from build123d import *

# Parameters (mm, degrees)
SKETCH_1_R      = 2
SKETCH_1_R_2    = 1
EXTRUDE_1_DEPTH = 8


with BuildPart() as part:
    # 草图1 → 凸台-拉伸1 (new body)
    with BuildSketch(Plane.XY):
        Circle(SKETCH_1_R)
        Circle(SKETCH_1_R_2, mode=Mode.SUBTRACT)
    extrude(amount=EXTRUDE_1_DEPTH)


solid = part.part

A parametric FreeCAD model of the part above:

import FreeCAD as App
import Part
import Sketcher

V = App.Vector

doc = App.newDocument("Part")
params = doc.addObject("Spreadsheet::Sheet", "Params")
for row, (alias, value) in enumerate([
    ("sketch1_diameter", "4 mm"),
    ("sketch1_diameter2", "2 mm"),
    ("pad1_length", "8 mm"),
], start=1):
    params.set(f"A{row}", alias)
    params.set(f"B{row}", "=" + value)
    params.setAlias(f"B{row}", alias)

body = doc.addObject("PartDesign::Body", "Body")

sketch1 = doc.addObject("Sketcher::SketchObject", "Sketch")
body.addObject(sketch1)
sketch1.AttachmentSupport = (doc.XY_Plane, [""])
sketch1.MapMode = "FlatFace"
sketch1.addGeometry(Part.Circle(V(0, 0, 0), V(0, 0, 1), 2), False)
sketch1.addGeometry(Part.Circle(V(0, 0, 0), V(0, 0, 1), 1), False)
sketch1.addConstraint(Sketcher.Constraint("Coincident", 0, 3, -1, 1))
sketch1.addConstraint(Sketcher.Constraint("Coincident", 1, 3, -1, 1))
sketch1.addConstraint(Sketcher.Constraint("Diameter", 0, 4.0))
sketch1.addConstraint(Sketcher.Constraint("Diameter", 1, 2.0))
sketch1.setExpression("Constraints[2]", "Params.sketch1_diameter")
sketch1.setExpression("Constraints[3]", "Params.sketch1_diameter2")
pad1 = doc.addObject("PartDesign::Pad", "Pad")
body.addObject(pad1)
pad1.Profile = sketch1
pad1.setExpression("Length", "Params.pad1_length")

doc.recompute()
